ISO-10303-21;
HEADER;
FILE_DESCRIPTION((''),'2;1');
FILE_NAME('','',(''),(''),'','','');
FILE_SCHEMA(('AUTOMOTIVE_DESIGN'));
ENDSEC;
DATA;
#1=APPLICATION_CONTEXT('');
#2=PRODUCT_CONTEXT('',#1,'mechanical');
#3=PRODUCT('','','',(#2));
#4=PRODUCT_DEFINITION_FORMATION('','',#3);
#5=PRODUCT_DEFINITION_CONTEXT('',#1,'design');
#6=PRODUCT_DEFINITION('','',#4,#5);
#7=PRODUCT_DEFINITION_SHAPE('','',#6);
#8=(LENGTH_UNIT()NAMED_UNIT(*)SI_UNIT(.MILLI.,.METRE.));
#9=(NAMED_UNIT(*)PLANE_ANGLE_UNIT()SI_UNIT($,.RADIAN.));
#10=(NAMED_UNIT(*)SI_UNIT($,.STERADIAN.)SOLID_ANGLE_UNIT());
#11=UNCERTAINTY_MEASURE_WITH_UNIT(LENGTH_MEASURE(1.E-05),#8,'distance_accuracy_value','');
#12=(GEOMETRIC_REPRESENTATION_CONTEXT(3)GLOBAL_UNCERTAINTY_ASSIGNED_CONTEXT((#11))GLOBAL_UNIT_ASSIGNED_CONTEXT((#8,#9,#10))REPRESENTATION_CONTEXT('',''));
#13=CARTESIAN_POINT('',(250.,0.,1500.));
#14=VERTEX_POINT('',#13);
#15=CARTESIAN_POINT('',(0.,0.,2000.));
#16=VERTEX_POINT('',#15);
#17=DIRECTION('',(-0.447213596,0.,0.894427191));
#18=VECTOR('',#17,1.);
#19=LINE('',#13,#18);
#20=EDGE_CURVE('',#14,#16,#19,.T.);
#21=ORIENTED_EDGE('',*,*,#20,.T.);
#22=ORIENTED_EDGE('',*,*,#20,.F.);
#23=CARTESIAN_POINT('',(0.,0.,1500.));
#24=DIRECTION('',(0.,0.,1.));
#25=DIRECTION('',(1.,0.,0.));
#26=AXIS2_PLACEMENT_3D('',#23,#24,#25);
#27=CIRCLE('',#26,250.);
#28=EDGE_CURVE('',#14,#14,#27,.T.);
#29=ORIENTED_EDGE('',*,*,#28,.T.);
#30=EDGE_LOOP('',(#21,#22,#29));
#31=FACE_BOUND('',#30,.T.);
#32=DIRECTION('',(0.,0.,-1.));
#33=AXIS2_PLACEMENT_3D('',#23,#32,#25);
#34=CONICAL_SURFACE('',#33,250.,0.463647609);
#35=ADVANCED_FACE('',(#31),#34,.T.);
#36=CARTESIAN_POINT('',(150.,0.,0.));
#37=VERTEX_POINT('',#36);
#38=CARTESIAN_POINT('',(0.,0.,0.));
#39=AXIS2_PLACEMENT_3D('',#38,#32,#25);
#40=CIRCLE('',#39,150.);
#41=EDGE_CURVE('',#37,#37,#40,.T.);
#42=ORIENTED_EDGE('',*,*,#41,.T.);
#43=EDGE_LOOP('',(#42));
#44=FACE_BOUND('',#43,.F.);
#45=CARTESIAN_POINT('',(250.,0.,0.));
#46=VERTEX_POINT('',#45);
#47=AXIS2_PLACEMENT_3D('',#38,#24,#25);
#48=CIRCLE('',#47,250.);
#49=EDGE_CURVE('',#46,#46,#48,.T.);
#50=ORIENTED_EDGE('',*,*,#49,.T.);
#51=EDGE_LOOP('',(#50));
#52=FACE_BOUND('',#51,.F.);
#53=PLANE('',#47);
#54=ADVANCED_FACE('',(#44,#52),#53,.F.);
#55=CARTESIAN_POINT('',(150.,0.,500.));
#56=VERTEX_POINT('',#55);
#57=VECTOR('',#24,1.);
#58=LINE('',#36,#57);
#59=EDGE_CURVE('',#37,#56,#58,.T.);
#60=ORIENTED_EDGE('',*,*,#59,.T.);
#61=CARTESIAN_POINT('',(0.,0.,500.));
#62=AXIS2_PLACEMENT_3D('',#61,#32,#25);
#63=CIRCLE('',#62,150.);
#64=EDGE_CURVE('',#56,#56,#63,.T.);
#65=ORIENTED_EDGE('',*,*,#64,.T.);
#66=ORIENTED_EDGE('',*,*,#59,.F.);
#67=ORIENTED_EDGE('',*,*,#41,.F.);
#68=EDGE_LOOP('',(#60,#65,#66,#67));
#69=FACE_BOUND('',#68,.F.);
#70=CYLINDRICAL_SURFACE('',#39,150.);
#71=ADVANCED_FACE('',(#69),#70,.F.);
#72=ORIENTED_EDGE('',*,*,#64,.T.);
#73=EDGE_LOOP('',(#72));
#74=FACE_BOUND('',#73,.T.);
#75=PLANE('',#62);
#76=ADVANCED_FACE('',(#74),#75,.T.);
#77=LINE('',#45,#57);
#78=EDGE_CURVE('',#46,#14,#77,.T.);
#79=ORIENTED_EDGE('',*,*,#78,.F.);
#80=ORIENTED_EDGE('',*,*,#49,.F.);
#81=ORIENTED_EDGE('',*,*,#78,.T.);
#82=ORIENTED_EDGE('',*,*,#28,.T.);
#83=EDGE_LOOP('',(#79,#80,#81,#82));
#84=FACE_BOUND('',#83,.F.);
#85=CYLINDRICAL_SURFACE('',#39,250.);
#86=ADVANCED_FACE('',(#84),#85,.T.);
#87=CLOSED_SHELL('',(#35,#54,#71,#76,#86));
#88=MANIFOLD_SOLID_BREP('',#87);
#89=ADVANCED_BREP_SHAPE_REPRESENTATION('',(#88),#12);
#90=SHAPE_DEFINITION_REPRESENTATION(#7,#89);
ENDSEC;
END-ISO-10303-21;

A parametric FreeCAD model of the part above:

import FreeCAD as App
import Part
import Sketcher


def add_polygon(sketch, points):
    """Adds a closed chain of lines whose ends are joined by coincident constraints."""
    first, n = sketch.GeometryCount, len(points)
    for a, b in zip(points, points[1:] + points[:1]):
        sketch.addGeometry(Part.LineSegment(App.Vector(*a, 0), App.Vector(*b, 0)), False)
    for i in range(n):
        sketch.addConstraint(Sketcher.Constraint("Coincident", first + i, 2, first + (i + 1) % n, 1))

doc = App.newDocument("Part")
body = doc.addObject("PartDesign::Body", "Body")

# Sketch on XY plane
sketch1 = doc.addObject("Sketcher::SketchObject", "Sketch")
body.addObject(sketch1)
sketch1.AttachmentSupport = (doc.XY_Plane, [""])
sketch1.MapMode = "FlatFace"
sketch1.addGeometry(Part.Circle(App.Vector(0, 0, 0), App.Vector(0, 0, 1), 250), False)
sketch1.addConstraint([
    Sketcher.Constraint("Coincident", 0, 3, -1, 1),
    Sketcher.Constraint("Diameter", 0, 500.0),
])
pad1 = doc.addObject("PartDesign::Pad", "Pad")
body.addObject(pad1)
pad1.Profile = sketch1
pad1.Length = 1500

# Sketch on XZ plane
sketch2 = doc.addObject("Sketcher::SketchObject", "Sketch001")
body.addObject(sketch2)
sketch2.AttachmentSupport = (doc.XZ_Plane, [""])
sketch2.MapMode = "FlatFace"
add_polygon(sketch2, [(0, 2000), (0, 1500), (250, 1500)])  # lines 0-2
sketch2.addConstraint([
    Sketcher.Constraint("Vertical", 0),
    Sketcher.Constraint("Horizontal", 1),
    Sketcher.Constraint("PointOnObject", 0, 2, -2),
    Sketcher.Constraint("DistanceX", 1, 1, 1, 2, 250.0),
    Sketcher.Constraint("DistanceY", 0, 2, 0, 1, 500.0),
    Sketcher.Constraint("DistanceY", -1, 1, 0, 2, 1500.0),
])
revolution = doc.addObject("PartDesign::Revolution", "Revolution")
body.addObject(revolution)
revolution.Profile = sketch2
revolution.ReferenceAxis = (sketch2, ["V_Axis"])
revolution.Angle = 360

# Sketch on XY plane
sketch3 = doc.addObject("Sketcher::SketchObject", "Sketch002")
body.addObject(sketch3)
sketch3.AttachmentSupport = (doc.XY_Plane, [""])
sketch3.MapMode = "FlatFace"
sketch3.addGeometry(Part.Circle(App.Vector(0, 0, 0), App.Vector(0, 0, 1), 150), False)
sketch3.addConstraint([
    Sketcher.Constraint("Coincident", 0, 3, -1, 1),
    Sketcher.Constraint("Diameter", 0, 300.0),
])
pocket1 = doc.addObject("PartDesign::Pocket", "Pocket")
body.addObject(pocket1)
pocket1.Profile = sketch3
pocket1.Length = 500
pocket1.Reversed = True

doc.recompute()
